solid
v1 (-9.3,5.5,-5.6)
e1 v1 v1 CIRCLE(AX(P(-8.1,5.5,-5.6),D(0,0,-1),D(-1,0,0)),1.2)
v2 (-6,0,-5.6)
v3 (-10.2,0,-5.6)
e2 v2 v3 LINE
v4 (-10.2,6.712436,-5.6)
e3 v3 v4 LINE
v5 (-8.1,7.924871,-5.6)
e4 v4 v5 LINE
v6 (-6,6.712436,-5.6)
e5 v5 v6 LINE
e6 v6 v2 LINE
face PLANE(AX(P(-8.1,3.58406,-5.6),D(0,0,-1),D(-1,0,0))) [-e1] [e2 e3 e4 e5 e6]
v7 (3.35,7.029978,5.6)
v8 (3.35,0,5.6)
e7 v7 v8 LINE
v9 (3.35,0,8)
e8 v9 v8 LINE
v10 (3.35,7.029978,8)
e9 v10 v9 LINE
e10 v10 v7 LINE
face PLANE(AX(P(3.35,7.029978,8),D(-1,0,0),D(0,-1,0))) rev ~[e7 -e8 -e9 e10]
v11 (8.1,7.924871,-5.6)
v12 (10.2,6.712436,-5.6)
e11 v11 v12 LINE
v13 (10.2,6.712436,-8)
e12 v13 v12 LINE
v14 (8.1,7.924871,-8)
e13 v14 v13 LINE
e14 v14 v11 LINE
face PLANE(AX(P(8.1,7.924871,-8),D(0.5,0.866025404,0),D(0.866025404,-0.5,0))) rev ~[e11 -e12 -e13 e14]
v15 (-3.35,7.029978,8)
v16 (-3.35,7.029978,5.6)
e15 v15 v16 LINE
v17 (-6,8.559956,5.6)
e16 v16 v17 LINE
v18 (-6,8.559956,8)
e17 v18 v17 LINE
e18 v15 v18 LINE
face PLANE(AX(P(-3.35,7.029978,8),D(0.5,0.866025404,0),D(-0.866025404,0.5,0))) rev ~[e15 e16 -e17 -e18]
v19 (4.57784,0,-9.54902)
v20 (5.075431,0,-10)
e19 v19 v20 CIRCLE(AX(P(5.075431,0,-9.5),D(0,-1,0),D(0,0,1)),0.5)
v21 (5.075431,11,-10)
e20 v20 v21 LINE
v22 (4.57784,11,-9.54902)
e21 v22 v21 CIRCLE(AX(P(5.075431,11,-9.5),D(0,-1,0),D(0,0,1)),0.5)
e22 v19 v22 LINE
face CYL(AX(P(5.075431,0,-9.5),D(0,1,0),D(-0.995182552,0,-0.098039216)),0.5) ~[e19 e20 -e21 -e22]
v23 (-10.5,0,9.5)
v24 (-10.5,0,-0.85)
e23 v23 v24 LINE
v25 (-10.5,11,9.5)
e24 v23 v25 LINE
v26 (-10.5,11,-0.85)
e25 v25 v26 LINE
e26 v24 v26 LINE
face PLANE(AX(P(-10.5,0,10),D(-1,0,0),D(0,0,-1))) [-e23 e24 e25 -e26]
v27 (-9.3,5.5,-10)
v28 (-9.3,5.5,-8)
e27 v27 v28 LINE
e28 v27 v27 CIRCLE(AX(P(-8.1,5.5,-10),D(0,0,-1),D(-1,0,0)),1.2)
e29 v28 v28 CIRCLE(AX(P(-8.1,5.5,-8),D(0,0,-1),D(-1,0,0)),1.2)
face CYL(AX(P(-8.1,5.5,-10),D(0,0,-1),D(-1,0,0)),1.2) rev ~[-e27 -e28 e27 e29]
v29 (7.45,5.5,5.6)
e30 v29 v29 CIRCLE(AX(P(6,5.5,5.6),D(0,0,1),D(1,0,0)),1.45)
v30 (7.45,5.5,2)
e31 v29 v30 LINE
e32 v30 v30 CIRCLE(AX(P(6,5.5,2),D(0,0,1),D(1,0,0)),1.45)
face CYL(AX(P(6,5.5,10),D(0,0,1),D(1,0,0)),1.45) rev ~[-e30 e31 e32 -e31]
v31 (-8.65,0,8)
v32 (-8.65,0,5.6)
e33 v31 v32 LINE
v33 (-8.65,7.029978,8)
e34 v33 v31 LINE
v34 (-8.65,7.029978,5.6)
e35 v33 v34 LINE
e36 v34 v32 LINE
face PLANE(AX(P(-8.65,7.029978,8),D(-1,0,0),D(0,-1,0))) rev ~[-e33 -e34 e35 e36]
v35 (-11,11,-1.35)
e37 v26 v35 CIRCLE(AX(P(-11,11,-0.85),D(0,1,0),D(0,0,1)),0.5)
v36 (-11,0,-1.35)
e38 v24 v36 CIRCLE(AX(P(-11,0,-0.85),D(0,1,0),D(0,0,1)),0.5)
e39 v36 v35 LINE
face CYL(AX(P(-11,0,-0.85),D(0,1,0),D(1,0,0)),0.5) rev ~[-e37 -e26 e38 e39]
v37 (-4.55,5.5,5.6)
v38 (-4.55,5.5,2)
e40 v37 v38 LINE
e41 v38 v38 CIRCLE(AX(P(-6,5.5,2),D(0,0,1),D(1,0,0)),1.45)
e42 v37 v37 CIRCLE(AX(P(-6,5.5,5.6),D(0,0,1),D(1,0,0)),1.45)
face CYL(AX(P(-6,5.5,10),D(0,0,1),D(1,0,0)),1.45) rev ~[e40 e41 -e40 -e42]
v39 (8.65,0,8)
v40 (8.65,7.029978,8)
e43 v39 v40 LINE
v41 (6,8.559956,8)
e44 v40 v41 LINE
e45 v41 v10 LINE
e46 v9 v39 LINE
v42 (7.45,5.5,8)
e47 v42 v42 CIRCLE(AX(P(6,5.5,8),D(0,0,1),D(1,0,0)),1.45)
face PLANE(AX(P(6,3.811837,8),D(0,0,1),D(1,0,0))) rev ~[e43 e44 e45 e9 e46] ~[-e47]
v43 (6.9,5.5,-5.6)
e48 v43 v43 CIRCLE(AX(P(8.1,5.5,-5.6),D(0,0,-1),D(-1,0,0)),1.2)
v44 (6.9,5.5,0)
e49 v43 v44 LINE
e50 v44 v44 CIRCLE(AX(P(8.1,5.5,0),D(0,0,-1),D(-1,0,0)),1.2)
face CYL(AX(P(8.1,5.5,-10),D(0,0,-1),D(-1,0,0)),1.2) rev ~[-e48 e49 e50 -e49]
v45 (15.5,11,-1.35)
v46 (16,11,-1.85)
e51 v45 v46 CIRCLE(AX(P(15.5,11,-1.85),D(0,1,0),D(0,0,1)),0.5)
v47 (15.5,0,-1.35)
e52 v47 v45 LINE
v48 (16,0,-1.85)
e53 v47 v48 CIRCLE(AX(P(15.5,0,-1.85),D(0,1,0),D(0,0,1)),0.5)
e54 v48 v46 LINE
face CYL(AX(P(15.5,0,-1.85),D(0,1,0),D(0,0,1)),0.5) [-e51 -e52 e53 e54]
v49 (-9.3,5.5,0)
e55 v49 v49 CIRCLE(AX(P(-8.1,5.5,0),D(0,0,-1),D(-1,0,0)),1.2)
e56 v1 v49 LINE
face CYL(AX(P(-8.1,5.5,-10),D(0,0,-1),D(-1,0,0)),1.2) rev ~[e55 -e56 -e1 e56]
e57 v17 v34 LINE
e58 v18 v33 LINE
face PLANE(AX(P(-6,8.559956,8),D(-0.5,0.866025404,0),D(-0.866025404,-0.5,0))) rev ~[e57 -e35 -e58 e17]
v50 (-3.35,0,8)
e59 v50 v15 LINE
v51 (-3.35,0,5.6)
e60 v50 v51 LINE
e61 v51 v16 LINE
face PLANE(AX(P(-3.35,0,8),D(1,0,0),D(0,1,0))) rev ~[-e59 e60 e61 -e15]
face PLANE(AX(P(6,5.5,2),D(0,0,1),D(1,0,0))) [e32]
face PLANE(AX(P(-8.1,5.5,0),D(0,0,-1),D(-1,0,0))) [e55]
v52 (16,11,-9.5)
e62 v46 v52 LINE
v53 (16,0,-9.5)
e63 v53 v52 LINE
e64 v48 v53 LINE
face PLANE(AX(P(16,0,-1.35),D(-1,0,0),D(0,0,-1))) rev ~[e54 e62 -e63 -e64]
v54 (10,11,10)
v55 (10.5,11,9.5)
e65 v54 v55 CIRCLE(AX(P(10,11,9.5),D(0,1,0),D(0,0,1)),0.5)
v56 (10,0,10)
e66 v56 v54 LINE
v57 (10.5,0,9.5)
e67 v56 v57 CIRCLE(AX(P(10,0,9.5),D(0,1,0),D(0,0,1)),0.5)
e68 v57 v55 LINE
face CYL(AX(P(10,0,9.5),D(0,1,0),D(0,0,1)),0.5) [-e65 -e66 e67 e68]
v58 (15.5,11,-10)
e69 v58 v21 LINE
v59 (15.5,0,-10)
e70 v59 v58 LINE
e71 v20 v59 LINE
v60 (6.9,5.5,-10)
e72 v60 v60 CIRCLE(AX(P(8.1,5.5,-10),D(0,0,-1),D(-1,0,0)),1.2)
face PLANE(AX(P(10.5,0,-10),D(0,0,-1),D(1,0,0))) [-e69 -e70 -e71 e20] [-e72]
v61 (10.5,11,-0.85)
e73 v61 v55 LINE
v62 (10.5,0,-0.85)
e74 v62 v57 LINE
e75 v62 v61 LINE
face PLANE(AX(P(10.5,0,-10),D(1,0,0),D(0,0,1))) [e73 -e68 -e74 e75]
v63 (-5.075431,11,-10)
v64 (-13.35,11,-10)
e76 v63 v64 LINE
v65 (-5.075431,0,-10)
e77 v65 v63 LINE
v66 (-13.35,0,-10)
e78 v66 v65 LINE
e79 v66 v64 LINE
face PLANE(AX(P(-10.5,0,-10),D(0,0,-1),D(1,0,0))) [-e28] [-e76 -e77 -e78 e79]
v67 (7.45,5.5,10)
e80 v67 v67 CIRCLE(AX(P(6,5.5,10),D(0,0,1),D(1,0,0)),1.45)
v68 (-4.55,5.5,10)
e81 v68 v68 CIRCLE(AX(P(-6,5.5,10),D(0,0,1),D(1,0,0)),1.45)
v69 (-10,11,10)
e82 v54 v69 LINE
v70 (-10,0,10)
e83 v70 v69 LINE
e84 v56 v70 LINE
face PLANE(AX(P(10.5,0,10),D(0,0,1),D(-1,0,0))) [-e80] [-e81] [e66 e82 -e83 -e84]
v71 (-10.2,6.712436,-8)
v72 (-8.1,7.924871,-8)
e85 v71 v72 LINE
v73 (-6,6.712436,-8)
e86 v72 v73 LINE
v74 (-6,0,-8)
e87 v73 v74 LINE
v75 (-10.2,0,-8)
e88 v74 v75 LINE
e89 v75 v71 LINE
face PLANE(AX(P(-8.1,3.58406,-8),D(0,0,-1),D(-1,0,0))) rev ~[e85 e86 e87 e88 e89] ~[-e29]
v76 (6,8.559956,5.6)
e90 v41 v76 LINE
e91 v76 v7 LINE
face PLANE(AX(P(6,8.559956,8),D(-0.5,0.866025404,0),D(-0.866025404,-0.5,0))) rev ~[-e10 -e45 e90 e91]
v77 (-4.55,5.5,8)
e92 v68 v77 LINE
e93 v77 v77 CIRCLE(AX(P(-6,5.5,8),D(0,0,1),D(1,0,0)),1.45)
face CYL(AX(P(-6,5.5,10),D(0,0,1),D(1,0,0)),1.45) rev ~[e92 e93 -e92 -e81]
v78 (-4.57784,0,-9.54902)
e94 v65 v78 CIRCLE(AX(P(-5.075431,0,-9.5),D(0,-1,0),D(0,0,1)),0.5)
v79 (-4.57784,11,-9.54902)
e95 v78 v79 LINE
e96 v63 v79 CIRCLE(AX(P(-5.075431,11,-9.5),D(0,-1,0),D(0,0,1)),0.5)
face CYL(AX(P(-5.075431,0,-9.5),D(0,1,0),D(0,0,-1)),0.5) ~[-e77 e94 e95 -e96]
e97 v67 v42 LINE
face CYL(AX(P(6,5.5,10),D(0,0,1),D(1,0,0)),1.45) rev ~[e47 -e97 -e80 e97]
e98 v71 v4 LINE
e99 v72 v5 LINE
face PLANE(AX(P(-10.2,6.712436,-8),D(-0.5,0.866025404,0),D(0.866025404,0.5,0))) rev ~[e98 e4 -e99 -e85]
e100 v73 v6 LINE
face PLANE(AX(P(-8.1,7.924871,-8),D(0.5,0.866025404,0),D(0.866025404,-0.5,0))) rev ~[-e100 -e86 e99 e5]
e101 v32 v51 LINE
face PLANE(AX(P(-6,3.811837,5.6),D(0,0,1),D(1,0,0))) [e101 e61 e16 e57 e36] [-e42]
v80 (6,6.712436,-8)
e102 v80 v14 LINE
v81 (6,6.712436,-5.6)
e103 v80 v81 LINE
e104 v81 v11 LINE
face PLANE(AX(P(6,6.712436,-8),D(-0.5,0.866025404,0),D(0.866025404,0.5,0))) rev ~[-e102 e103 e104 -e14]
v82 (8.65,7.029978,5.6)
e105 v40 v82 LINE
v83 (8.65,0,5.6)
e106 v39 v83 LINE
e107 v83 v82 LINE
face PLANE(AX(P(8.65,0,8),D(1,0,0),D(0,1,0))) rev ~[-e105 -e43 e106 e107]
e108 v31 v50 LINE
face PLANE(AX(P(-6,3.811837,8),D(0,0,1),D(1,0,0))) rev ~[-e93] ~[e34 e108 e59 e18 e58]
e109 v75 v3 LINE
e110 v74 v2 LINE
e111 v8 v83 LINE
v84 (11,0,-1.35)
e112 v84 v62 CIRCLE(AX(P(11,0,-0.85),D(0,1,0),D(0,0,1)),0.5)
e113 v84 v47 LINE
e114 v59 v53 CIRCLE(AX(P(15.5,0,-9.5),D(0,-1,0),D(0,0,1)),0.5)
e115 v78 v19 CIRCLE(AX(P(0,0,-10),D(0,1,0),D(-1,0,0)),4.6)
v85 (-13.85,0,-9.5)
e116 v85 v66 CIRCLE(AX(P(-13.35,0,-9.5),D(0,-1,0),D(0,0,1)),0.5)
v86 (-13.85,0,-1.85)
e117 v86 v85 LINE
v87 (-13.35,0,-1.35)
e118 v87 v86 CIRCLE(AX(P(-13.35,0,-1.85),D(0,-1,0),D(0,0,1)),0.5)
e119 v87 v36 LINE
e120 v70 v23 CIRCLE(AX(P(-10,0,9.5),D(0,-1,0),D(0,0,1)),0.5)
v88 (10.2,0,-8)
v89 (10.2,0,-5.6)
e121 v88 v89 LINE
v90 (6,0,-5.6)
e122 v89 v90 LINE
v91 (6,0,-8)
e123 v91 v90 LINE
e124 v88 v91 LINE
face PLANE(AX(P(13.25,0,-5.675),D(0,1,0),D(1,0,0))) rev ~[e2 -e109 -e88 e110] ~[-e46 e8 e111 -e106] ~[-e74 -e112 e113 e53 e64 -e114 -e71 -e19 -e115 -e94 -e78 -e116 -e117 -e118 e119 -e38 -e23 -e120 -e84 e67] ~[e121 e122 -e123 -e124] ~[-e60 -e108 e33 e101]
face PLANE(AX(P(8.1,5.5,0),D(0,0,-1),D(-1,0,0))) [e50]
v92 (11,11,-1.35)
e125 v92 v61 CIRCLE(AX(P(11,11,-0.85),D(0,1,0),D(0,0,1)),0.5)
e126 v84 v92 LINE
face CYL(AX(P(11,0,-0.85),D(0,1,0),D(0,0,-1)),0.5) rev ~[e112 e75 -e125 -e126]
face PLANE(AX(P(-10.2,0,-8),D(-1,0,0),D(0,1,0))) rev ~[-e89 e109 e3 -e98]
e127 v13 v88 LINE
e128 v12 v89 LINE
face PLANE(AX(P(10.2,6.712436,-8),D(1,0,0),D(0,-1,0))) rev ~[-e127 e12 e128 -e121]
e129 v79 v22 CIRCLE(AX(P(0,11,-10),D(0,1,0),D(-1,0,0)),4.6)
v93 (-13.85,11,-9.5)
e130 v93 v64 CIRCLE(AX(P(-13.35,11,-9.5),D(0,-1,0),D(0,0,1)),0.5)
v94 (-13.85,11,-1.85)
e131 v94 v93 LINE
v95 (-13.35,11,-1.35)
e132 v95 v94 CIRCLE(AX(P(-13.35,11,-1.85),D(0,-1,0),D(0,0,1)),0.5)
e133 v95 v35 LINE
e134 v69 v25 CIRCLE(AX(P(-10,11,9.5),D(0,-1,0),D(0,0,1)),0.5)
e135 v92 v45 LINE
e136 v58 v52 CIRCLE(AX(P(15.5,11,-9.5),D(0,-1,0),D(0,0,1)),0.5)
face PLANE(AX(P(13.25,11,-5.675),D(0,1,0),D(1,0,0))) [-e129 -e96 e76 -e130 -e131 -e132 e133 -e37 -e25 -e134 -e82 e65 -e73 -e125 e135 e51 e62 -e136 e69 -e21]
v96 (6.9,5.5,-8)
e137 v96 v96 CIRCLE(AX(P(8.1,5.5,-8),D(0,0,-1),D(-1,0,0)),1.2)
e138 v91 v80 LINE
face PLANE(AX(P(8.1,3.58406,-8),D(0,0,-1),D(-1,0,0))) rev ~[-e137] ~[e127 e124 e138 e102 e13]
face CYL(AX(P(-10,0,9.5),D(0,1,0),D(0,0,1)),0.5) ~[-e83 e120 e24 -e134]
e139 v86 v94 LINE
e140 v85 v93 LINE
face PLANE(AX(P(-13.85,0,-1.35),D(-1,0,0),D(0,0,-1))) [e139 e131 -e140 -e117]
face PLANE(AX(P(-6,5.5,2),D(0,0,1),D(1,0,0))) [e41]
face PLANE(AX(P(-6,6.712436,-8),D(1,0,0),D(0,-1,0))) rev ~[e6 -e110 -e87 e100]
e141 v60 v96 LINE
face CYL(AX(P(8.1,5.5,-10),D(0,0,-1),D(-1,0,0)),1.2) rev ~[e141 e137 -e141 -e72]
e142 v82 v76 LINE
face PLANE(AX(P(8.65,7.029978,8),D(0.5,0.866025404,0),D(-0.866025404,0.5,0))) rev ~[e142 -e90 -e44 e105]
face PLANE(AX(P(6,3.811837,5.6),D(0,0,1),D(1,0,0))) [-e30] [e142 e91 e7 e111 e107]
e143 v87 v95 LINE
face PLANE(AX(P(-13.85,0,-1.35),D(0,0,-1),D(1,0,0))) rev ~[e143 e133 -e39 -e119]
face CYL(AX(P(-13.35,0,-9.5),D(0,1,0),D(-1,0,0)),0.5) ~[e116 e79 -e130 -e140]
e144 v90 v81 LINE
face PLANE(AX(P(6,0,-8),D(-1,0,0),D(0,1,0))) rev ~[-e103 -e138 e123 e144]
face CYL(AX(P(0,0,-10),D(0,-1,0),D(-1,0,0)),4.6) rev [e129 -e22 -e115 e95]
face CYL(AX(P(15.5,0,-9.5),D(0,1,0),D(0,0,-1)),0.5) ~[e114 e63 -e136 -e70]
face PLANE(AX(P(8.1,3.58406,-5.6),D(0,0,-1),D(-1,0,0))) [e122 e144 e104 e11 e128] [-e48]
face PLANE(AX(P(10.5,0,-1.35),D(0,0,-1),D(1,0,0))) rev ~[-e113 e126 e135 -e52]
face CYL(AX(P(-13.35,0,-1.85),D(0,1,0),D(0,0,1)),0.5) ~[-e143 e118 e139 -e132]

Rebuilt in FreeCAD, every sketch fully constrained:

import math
import FreeCAD as App
import Part
import Sketcher
from FreeCAD import Vector
Q = App.Units.Quantity


def edges_at(feature, points):
    """Names of the edges that pass closest to the given points."""
    edges = feature.Shape.Edges
    near = lambda p: min(range(len(edges)), key=lambda i: edges[i].distToShape(Part.Vertex(*p))[0])
    return sorted({f"Edge{near(p) + 1}" for p in points})


def add_polygon(sketch, points):
    """Adds a closed chain of lines whose ends are joined by coincident constraints."""
    first, n = sketch.GeometryCount, len(points)
    for a, b in zip(points, points[1:] + points[:1]):
        sketch.addGeometry(Part.LineSegment(App.Vector(*a, 0), App.Vector(*b, 0)), False)
    for i in range(n):
        sketch.addConstraint(Sketcher.Constraint("Coincident", first + i, 2, first + (i + 1) % n, 1))

doc = App.newDocument("Part")
body = doc.addObject("PartDesign::Body", "Body")

# Sketch on XZ plane
sketch1 = body.newObject("Sketcher::SketchObject", "Sketch")
sketch1.AttachmentSupport = (doc.getObject("XZ_Plane"), [""])
sketch1.MapMode = "FlatFace"
sketch1.addGeometry(Part.ArcOfCircle(Part.Circle(Vector(0, -10, 0), Vector(0, 0, 1), 4.6), math.radians(0), math.radians(180)), False)
sketch1.addGeometry(Part.LineSegment(Vector(-4.6, -10, 0), Vector(-10.5, -10, 0)), False)
sketch1.addGeometry(Part.LineSegment(Vector(-10.5, -10, 0), Vector(-10.5, 10, 0)), False)
sketch1.addGeometry(Part.LineSegment(Vector(-10.5, 10, 0), Vector(10.5, 10, 0)), False)
sketch1.addGeometry(Part.LineSegment(Vector(10.5, 10, 0), Vector(10.5, -10, 0)), False)
sketch1.addGeometry(Part.LineSegment(Vector(10.5, -10, 0), Vector(4.6, -10, 0)), False)
sketch1.addConstraint(Sketcher.Constraint("Coincident", 0, 2, 1, 1))
sketch1.addConstraint(Sketcher.Constraint("Coincident", 1, 2, 2, 1))
sketch1.addConstraint(Sketcher.Constraint("Coincident", 2, 2, 3, 1))
sketch1.addConstraint(Sketcher.Constraint("Coincident", 3, 2, 4, 1))
sketch1.addConstraint(Sketcher.Constraint("Coincident", 4, 2, 5, 1))
sketch1.addConstraint(Sketcher.Constraint("Coincident", 5, 2, 0, 1))
sketch1.addConstraint(Sketcher.Constraint("Horizontal", 1))
sketch1.addConstraint(Sketcher.Constraint("Vertical", 2))
sketch1.addConstraint(Sketcher.Constraint("Horizontal", 3))
sketch1.addConstraint(Sketcher.Constraint("Vertical", 4))
sketch1.addConstraint(Sketcher.Constraint("Horizontal", 5))
sketch1.addConstraint(Sketcher.Constraint("Symmetric", 1, 2, 3, 2, -1, 1))
sketch1.addConstraint(Sketcher.Constraint("Symmetric", 0, 2, 5, 2, -2))
sketch1.addConstraint(Sketcher.Constraint("Radius", 0, Q("4.6 mm")))
sketch1.addConstraint(Sketcher.Constraint("DistanceX", 3, 1, 3, 2, Q("21 mm")))
sketch1.addConstraint(Sketcher.Constraint("DistanceY", 2, 1, 2, 2, Q("20 mm")))
sketch1.addConstraint(Sketcher.Constraint("DistanceY", 0, 3, -1, 1, Q("10 mm")))
pad1 = body.newObject("PartDesign::Pad", "Pad")
pad1.Profile = sketch1
pad1.Length = 11
pad1.Reversed = True

# Sketch on XY plane
sketch2 = body.newObject("Sketcher::SketchObject", "Sketch001")
sketch2.AttachmentSupport = (doc.getObject("XY_Plane"), [""])
sketch2.MapMode = "FlatFace"
sketch2.AttachmentOffset = App.Placement(Vector(0, 0, 10), App.Rotation())
sketch2.addGeometry(Part.Circle(Vector(-6, 5.5, 0), Vector(0, 0, 1), 1.4), False)
sketch2.addGeometry(Part.Circle(Vector(6, 5.5, 0), Vector(0, 0, 1), 1.4), False)
sketch2.addConstraint(Sketcher.Constraint("Equal", 0, 1))
sketch2.addConstraint(Sketcher.Constraint("Symmetric", 0, 3, 1, 3, -2))
sketch2.addConstraint(Sketcher.Constraint("Diameter", 0, Q("2.9 mm")))
sketch2.addConstraint(Sketcher.Constraint("DistanceX", 0, 3, -1, 1, Q("6 mm")))
sketch2.addConstraint(Sketcher.Constraint("DistanceY", -1, 1, 0, 3, Q("5.5 mm")))
pocket1 = body.newObject("PartDesign::Pocket", "Pocket")
pocket1.Profile = sketch2
pocket1.Length = 8

# Sketch on XY plane
sketch3 = body.newObject("Sketcher::SketchObject", "Sketch002")
sketch3.AttachmentSupport = (doc.getObject("XY_Plane"), [""])
sketch3.MapMode = "FlatFace"
sketch3.AttachmentOffset = App.Placement(Vector(0, 0, -10), App.Rotation())
sketch3.addGeometry(Part.Circle(Vector(8.1, 5.5, 0), Vector(0, 0, 1), 1.2), False)
sketch3.addGeometry(Part.Circle(Vector(-8.1, 5.5, 0), Vector(0, 0, 1), 1.2), False)
sketch3.addConstraint(Sketcher.Constraint("Equal", 0, 1))
sketch3.addConstraint(Sketcher.Constraint("Symmetric", 0, 3, 1, 3, -2))
sketch3.addConstraint(Sketcher.Constraint("Diameter", 0, Q("2.4 mm")))
sketch3.addConstraint(Sketcher.Constraint("DistanceX", -1, 1, 0, 3, Q("8.1 mm")))
sketch3.addConstraint(Sketcher.Constraint("DistanceY", -1, 1, 0, 3, Q("5.5 mm")))
pocket2 = body.newObject("PartDesign::Pocket", "Pocket001")
pocket2.Profile = sketch3
pocket2.Length = 10
pocket2.Reversed = True

# Sketch on XY plane
sketch4 = body.newObject("Sketcher::SketchObject", "Sketch003")
sketch4.AttachmentSupport = (doc.getObject("XY_Plane"), [""])
sketch4.MapMode = "FlatFace"
sketch4.AttachmentOffset = App.Placement(Vector(0, 0, -8), App.Rotation())
add_polygon(sketch4, [(6, 0), (6, 6.7), (8.1, 7.9), (10.2, 6.7), (10.2, 0)])  # lines 0-4
sketch4.addGeometry(Part.Circle(Vector(8.1, 5.5, 0), Vector(0, 0, 1), 1.2), False)  # 5
add_polygon(sketch4, [(-6, 0), (-10.2, 0), (-10.2, 6.7), (-8.1, 7.9), (-6, 6.7)])  # lines 6-10
sketch4.addConstraint(Sketcher.Constraint("Vertical", 0))
sketch4.addConstraint(Sketcher.Constraint("Vertical", 3))
sketch4.addConstraint(Sketcher.Constraint("Horizontal", 4))
sketch4.addConstraint(Sketcher.Constraint("Horizontal", 6))
sketch4.addConstraint(Sketcher.Constraint("Vertical", 7))
sketch4.addConstraint(Sketcher.Constraint("Vertical", 10))
sketch4.addConstraint(Sketcher.Constraint("Symmetric", 3, 2, 6, 2, -1, 1))
sketch4.addConstraint(Sketcher.Constraint("Symmetric", 1, 2, 8, 2, -2))
sketch4.addConstraint(Sketcher.Constraint("Symmetric", 0, 2, 9, 2, -2))
sketch4.addConstraint(Sketcher.Constraint("PointOnObject", 3, 2, -1))
sketch4.addConstraint(Sketcher.Constraint("Parallel", 1, 8))
sketch4.addConstraint(Sketcher.Constraint("Parallel", 2, 9))
sketch4.addConstraint(Sketcher.Constraint("Horizontal", 0, 2, 2, 2))
sketch4.addConstraint(Sketcher.Constraint("Vertical", 5, 3, 1, 2))
sketch4.addConstraint(Sketcher.Constraint("Diameter", 5, Q("2.4 mm")))
sketch4.addConstraint(Sketcher.Constraint("Angle", 1, Q("30 deg")))
sketch4.addConstraint(Sketcher.Constraint("DistanceX", 4, 2, 4, 1, Q("4.2 mm")))
sketch4.addConstraint(Sketcher.Constraint("DistanceX", -1, 1, 0, 2, Q("6 mm")))
sketch4.addConstraint(Sketcher.Constraint("DistanceY", -1, 1, 5, 3, Q("5.5 mm")))
sketch4.addConstraint(Sketcher.Constraint("DistanceY", 0, 1, 0, 2, Q("6.712436 mm")))
pocket3 = body.newObject("PartDesign::Pocket", "Pocket002")
pocket3.Profile = sketch4
pocket3.Length = 2.4
pocket3.Reversed = True

# Sketch on XY plane
sketch5 = body.newObject("Sketcher::SketchObject", "Sketch004")
sketch5.AttachmentSupport = (doc.getObject("XY_Plane"), [""])
sketch5.MapMode = "FlatFace"
sketch5.AttachmentOffset = App.Placement(Vector(0, 0, 8), App.Rotation())
add_polygon(sketch5, [(-6, 8.6), (-8.7, 7), (-8.7, 0), (-3.4, 0), (-3.4, 7)])  # lines 0-4
add_polygon(sketch5, [(6, 8.6), (3.4, 7), (3.4, 0), (8.7, 0), (8.7, 7)])  # lines 5-9
sketch5.addConstraint(Sketcher.Constraint("Vertical", 1))
sketch5.addConstraint(Sketcher.Constraint("Horizontal", 2))
sketch5.addConstraint(Sketcher.Constraint("Vertical", 3))
sketch5.addConstraint(Sketcher.Constraint("Vertical", 6))
sketch5.addConstraint(Sketcher.Constraint("Horizontal", 7))
sketch5.addConstraint(Sketcher.Constraint("Vertical", 8))
sketch5.addConstraint(Sketcher.Constraint("Symmetric", 2, 2, 6, 2, -1, 1))
sketch5.addConstraint(Sketcher.Constraint("Symmetric", 1, 2, 7, 2, -2))
sketch5.addConstraint(Sketcher.Constraint("Symmetric", 4, 2, 9, 2, -2))
sketch5.addConstraint(Sketcher.Constraint("Parallel", 0, 5))
sketch5.addConstraint(Sketcher.Constraint("Parallel", 4, 9))
sketch5.addConstraint(Sketcher.Constraint("Horizontal", 0, 2, 3, 2))
sketch5.addConstraint(Sketcher.Constraint("Horizontal", 3, 2, 5, 2))
sketch5.addConstraint(Sketcher.Constraint("Angle", 0, Q("-150 deg")))
sketch5.addConstraint(Sketcher.Constraint("DistanceX", 2, 1, 2, 2, Q("5.3 mm")))
sketch5.addConstraint(Sketcher.Constraint("DistanceX", 4, 2, -1, 1, Q("6 mm")))
sketch5.addConstraint(Sketcher.Constraint("DistanceY", 1, 2, 1, 1, Q("7.029978 mm")))
pocket4 = body.newObject("PartDesign::Pocket", "Pocket003")
pocket4.Profile = sketch5
pocket4.Length = 2.4

# Sketch on XZ plane
sketch6 = body.newObject("Sketcher::SketchObject", "Sketch005")
sketch6.AttachmentSupport = (doc.getObject("XZ_Plane"), [""])
sketch6.MapMode = "FlatFace"
add_polygon(sketch6, [(10.5, -10), (10.5, -1.4), (16, -1.4), (16, -10)])  # lines 0-3
add_polygon(sketch6, [(-13.8, -10), (-13.8, -1.4), (-10.5, -1.4), (-10.5, -10)])  # lines 4-7
sketch6.addConstraint(Sketcher.Constraint("Vertical", 0))
sketch6.addConstraint(Sketcher.Constraint("Horizontal", 1))
sketch6.addConstraint(Sketcher.Constraint("Vertical", 2))
sketch6.addConstraint(Sketcher.Constraint("Horizontal", 3))
sketch6.addConstraint(Sketcher.Constraint("Vertical", 4))
sketch6.addConstraint(Sketcher.Constraint("Horizontal", 5))
sketch6.addConstraint(Sketcher.Constraint("Vertical", 6))
sketch6.addConstraint(Sketcher.Constraint("Horizontal", 7))
sketch6.addConstraint(Sketcher.Constraint("Symmetric", 0, 2, 5, 2, -2))
sketch6.addConstraint(Sketcher.Constraint("Horizontal", 3, 2, 6, 2))
sketch6.addConstraint(Sketcher.Constraint("DistanceX", 1, 1, 1, 2, Q("5.5 mm")))
sketch6.addConstraint(Sketcher.Constraint("DistanceX", -1, 1, 1, 2, Q("16 mm")))
sketch6.addConstraint(Sketcher.Constraint("DistanceY", 2, 2, -1, 1, Q("10 mm")))
sketch6.addConstraint(Sketcher.Constraint("DistanceX", 5, 1, 5, 2, Q("3.35 mm")))
sketch6.addConstraint(Sketcher.Constraint("DistanceY", 0, 1, 0, 2, Q("8.65 mm")))
pad2 = body.newObject("PartDesign::Pad", "Pad001")
pad2.Profile = sketch6
pad2.Type = "UpToLast"
pad2.Reversed = True
doc.recompute()

fillet = body.newObject("PartDesign::Fillet", "Fillet")
fillet.Base = (pad2, edges_at(pad2, [
    (10.5, 5.5, -1.35),
    (16, 5.5, -1.35),
    (16, 5.5, -10),
    (4.6, 5.5, -10),
    (10.5, 5.5, 10),
    (-10.5, 5.5, 10),
    (-4.6, 5.5, -10),
    (-13.85, 5.5, -10),
    (-13.85, 5.5, -1.35),
    (-10.5, 5.5, -1.35),
]))
fillet.Radius = 0.5

doc.recompute()
